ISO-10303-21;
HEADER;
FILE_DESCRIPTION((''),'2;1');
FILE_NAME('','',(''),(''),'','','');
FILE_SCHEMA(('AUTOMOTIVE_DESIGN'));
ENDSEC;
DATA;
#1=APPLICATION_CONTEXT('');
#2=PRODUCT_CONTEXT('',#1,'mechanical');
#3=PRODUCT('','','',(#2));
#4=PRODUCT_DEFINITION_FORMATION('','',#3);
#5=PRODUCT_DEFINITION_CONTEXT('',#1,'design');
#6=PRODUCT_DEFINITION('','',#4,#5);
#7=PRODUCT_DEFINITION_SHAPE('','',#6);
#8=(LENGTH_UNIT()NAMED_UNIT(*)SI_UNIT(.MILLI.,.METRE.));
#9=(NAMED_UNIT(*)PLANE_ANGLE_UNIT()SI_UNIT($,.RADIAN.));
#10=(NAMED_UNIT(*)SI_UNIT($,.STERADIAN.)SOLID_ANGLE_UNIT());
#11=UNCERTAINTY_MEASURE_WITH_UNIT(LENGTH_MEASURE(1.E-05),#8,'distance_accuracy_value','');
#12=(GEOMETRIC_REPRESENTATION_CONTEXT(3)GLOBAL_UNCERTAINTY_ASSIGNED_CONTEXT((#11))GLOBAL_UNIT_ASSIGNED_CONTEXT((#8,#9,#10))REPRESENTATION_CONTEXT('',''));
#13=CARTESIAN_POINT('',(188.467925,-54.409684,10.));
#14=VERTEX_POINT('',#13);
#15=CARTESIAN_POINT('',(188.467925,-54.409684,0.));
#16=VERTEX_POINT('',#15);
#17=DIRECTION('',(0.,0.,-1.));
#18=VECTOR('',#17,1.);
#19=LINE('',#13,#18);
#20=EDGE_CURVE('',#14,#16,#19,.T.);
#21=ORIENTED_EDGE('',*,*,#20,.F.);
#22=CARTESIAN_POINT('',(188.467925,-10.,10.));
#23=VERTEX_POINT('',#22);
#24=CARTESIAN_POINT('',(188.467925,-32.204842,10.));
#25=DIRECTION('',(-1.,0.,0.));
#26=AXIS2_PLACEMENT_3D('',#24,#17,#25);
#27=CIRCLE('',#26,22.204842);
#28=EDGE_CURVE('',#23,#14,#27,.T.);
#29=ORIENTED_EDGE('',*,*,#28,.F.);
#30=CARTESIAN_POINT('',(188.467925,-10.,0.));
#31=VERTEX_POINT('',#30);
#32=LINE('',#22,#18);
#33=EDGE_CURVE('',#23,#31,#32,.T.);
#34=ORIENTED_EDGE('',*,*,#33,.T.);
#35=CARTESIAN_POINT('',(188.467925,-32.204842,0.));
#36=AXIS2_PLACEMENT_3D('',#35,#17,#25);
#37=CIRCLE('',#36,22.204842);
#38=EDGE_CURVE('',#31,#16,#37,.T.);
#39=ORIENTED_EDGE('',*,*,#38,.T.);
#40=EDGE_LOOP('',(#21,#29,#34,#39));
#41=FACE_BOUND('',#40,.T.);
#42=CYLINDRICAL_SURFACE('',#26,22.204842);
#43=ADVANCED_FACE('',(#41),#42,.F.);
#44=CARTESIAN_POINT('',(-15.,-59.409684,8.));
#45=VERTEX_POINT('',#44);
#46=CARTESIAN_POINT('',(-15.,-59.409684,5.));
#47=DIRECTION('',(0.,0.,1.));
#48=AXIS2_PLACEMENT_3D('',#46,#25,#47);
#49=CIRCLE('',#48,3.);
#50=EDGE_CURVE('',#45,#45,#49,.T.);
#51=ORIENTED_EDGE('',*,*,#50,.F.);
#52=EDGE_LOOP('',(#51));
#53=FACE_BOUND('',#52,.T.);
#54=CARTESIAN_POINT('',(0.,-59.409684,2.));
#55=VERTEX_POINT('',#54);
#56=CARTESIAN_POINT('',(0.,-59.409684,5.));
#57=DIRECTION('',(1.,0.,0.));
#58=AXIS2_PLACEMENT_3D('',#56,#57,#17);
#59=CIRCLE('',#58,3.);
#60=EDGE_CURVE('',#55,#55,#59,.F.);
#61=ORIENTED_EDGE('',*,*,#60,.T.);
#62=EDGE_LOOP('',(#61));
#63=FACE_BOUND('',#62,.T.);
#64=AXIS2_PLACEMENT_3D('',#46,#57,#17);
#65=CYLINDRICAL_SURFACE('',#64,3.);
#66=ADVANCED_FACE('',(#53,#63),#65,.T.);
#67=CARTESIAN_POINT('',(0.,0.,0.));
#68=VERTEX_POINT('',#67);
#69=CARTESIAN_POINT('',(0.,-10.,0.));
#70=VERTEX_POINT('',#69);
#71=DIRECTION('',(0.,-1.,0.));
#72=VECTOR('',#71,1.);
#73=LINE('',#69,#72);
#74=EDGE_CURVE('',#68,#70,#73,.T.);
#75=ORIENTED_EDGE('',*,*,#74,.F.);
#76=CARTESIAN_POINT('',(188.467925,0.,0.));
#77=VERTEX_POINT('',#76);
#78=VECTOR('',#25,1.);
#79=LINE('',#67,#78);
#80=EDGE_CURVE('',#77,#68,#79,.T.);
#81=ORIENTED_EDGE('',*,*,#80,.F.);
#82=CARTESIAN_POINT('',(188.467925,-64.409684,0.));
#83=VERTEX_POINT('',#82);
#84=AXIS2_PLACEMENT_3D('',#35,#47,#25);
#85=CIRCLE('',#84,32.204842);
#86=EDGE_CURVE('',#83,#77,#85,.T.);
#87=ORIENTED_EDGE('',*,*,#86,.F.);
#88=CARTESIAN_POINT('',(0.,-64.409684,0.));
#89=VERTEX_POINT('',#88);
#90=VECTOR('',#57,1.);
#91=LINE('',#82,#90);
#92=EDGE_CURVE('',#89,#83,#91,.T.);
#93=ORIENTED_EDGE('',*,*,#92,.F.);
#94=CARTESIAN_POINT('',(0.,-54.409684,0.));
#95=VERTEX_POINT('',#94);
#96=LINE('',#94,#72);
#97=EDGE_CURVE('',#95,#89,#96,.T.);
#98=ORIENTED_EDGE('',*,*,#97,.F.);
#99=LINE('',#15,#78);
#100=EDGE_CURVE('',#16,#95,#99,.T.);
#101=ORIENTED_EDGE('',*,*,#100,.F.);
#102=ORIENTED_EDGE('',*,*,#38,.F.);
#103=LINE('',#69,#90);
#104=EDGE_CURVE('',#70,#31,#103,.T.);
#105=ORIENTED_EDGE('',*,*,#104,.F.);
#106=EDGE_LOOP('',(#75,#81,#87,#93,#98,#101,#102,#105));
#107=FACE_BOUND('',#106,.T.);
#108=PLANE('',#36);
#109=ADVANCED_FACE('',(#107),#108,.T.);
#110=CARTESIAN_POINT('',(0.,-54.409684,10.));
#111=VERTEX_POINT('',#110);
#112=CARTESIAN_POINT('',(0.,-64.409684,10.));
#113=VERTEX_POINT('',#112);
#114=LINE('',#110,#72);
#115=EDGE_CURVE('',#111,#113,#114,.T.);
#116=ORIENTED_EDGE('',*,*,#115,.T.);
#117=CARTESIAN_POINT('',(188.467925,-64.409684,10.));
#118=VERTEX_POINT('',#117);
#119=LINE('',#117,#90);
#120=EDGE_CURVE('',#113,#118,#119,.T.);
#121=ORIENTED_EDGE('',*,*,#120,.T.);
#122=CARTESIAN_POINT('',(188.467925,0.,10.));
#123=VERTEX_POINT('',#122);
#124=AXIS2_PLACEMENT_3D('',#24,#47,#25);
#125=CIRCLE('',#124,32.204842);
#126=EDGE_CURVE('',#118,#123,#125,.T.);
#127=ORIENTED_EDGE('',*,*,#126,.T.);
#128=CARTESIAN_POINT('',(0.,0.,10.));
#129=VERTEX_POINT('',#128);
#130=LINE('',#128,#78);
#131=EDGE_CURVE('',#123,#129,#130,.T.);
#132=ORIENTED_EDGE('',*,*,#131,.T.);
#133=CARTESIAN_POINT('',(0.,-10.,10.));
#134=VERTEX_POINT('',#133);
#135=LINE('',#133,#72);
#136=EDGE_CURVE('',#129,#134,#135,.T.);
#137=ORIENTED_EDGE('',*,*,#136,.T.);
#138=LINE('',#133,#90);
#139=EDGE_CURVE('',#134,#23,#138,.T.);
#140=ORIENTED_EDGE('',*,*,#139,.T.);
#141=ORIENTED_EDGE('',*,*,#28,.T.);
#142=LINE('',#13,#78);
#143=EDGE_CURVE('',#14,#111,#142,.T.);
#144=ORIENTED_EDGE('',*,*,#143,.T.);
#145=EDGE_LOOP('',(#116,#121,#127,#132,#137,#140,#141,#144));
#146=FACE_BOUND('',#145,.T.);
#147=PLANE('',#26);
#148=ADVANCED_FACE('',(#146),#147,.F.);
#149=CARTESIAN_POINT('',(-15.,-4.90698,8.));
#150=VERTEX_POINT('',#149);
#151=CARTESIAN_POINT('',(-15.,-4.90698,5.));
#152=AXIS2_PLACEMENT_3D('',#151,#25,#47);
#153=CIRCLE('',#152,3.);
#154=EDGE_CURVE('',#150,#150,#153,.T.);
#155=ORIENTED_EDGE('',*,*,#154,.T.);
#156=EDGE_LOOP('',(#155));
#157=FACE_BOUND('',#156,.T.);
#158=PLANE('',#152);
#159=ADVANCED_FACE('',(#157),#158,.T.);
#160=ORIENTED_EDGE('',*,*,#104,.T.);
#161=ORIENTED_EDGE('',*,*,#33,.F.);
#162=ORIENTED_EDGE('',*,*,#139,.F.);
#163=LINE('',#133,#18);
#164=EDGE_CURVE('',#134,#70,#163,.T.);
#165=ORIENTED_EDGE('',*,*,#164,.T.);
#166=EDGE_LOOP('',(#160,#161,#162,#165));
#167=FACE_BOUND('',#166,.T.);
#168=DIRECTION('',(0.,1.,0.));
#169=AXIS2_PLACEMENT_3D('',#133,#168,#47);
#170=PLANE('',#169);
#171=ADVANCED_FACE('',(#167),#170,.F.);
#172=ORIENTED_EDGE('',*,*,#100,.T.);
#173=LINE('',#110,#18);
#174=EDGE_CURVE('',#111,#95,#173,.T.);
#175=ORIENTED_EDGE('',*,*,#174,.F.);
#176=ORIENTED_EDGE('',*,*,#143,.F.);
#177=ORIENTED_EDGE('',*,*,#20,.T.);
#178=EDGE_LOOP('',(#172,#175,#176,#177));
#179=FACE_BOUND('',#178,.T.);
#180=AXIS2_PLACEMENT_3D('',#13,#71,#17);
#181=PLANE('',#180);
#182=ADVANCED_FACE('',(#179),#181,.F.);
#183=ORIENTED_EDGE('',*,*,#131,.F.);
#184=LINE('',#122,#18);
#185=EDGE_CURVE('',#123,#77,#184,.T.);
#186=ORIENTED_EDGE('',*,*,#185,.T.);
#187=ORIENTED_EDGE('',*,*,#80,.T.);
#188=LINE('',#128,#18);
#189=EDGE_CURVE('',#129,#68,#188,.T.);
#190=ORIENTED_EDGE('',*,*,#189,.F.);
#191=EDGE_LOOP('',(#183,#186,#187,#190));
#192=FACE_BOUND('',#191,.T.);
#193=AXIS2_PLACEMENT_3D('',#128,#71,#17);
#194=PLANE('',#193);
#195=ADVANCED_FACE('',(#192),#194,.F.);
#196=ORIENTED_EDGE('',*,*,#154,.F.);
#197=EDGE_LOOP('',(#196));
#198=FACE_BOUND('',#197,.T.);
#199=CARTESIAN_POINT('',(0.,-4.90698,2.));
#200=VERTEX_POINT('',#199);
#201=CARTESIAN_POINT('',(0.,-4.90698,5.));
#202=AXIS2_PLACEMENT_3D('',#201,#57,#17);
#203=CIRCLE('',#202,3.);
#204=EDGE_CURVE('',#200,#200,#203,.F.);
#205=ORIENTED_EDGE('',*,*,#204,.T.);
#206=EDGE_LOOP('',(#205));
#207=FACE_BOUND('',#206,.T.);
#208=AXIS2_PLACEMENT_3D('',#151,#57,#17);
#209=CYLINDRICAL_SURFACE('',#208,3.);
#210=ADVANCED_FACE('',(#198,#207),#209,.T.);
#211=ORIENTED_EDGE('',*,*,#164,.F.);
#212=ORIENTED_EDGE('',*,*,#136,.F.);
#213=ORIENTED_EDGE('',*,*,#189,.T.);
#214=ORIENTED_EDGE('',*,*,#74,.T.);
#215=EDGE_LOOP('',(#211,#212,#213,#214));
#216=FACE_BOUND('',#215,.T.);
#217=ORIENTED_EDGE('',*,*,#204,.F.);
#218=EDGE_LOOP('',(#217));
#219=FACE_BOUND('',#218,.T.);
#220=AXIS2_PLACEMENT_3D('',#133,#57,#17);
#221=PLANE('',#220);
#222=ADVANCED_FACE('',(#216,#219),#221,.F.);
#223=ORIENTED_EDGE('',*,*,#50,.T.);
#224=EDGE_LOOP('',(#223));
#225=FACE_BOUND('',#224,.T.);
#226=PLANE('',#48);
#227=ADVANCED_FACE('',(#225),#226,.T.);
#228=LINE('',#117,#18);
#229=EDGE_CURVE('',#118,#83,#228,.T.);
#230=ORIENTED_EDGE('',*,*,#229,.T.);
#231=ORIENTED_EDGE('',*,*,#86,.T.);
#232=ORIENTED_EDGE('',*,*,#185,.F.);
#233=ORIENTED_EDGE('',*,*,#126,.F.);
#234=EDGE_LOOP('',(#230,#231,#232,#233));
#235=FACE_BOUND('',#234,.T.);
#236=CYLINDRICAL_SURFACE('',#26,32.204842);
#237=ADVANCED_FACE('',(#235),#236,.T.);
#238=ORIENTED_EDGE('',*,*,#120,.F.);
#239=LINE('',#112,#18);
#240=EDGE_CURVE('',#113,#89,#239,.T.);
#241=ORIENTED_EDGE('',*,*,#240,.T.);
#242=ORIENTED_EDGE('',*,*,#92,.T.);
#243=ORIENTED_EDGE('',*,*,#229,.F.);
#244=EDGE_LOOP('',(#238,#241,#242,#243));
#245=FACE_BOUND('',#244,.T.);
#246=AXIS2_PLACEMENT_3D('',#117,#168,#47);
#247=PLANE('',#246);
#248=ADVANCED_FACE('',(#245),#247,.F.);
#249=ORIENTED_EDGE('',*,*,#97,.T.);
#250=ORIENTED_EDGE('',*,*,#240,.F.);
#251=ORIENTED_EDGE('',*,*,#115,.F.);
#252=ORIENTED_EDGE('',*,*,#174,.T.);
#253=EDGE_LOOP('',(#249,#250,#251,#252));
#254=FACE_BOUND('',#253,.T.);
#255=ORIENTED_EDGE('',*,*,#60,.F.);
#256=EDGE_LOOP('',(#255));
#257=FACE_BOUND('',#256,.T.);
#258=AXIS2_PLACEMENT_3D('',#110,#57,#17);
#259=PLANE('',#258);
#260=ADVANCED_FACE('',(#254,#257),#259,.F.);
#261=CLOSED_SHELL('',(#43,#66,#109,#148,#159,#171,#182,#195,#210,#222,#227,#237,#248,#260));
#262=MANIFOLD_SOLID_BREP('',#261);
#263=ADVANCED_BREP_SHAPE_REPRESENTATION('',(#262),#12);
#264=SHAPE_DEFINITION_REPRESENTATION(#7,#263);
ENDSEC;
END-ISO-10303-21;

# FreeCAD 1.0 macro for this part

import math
import FreeCAD as App
import Part
import Sketcher

V = App.Vector

doc = App.newDocument("Part")
body = doc.addObject("PartDesign::Body", "Body")

sketch1 = body.newObject("Sketcher::SketchObject", "Sketch")
sketch1.AttachmentSupport = (doc.getObject("XY_Plane"), [""])
sketch1.MapMode = "FlatFace"
sketch1.addGeometry(Part.LineSegment(V(188, 0, 0), V(0, 0, 0)), False)
sketch1.addGeometry(Part.LineSegment(V(0, 0, 0), V(0, -10, 0)), False)
sketch1.addGeometry(Part.LineSegment(V(0, -10, 0), V(188, -10, 0)), False)
sketch1.addGeometry(Part.ArcOfCircle(Part.Circle(V(188, -32, 0), V(0, 0, 1), 22), math.radians(-90), math.radians(90)), False)
sketch1.addGeometry(Part.LineSegment(V(188, -54, 0), V(0, -54, 0)), False)
sketch1.addGeometry(Part.LineSegment(V(0, -54, 0), V(0, -64, 0)), False)
sketch1.addGeometry(Part.LineSegment(V(0, -64, 0), V(188, -64, 0)), False)
sketch1.addGeometry(Part.ArcOfCircle(Part.Circle(V(188, -32, 0), V(0, 0, 1), 32), math.radians(-90), math.radians(90)), False)
sketch1.addConstraint(Sketcher.Constraint("Coincident", 0, 2, 1, 1))
sketch1.addConstraint(Sketcher.Constraint("Coincident", 1, 2, 2, 1))
sketch1.addConstraint(Sketcher.Constraint("Tangent", 2, 2, 3, 2))
sketch1.addConstraint(Sketcher.Constraint("Tangent", 3, 1, 4, 1))
sketch1.addConstraint(Sketcher.Constraint("Coincident", 4, 2, 5, 1))
sketch1.addConstraint(Sketcher.Constraint("Coincident", 5, 2, 6, 1))
sketch1.addConstraint(Sketcher.Constraint("Tangent", 6, 2, 7, 1))
sketch1.addConstraint(Sketcher.Constraint("Tangent", 7, 2, 0, 1))
sketch1.addConstraint(Sketcher.Constraint("Horizontal", 0))
sketch1.addConstraint(Sketcher.Constraint("Vertical", 1))
sketch1.addConstraint(Sketcher.Constraint("Horizontal", 2))
sketch1.addConstraint(Sketcher.Constraint("Horizontal", 4))
sketch1.addConstraint(Sketcher.Constraint("Vertical", 5))
sketch1.addConstraint(Sketcher.Constraint("Horizontal", 6))
sketch1.addConstraint(Sketcher.Constraint("Coincident", 0, 2, -1, 1))
sketch1.addConstraint(Sketcher.Constraint("Coincident", 7, 3, 3, 3))
sketch1.addConstraint(Sketcher.Constraint("PointOnObject", 4, 2, -2))
sketch1.addConstraint(Sketcher.Constraint("DistanceY", 1, 2, 1, 1, 10.0))
sketch1.addConstraint(Sketcher.Constraint("Radius", 3, 22.204842))
sketch1.addConstraint(Sketcher.Constraint("DistanceX", 0, 2, 0, 1, 188.467925))
pad1 = body.newObject("PartDesign::Pad", "Pad")
pad1.Profile = sketch1
pad1.Length = 10

sketch2 = body.newObject("Sketcher::SketchObject", "Sketch001")
sketch2.AttachmentSupport = (doc.getObject("YZ_Plane"), [""])
sketch2.MapMode = "FlatFace"
sketch2.addGeometry(Part.Circle(V(-4.9, 5, 0), V(0, 0, 1), 3), False)
sketch2.addConstraint(Sketcher.Constraint("Diameter", 0, 6.0))
sketch2.addConstraint(Sketcher.Constraint("DistanceY", -1, 1, 0, 3, 5.0))
sketch2.addConstraint(Sketcher.Constraint("DistanceX", 0, 3, -1, 1, 4.90698))
pad2 = body.newObject("PartDesign::Pad", "Pad001")
pad2.Profile = sketch2
pad2.Length = 15
pad2.Reversed = True

sketch3 = body.newObject("Sketcher::SketchObject", "Sketch002")
sketch3.AttachmentSupport = (doc.getObject("YZ_Plane"), [""])
sketch3.MapMode = "FlatFace"
sketch3.addGeometry(Part.Circle(V(-59.4, 5, 0), V(0, 0, 1), 3), False)
sketch3.addConstraint(Sketcher.Constraint("Diameter", 0, 6.0))
sketch3.addConstraint(Sketcher.Constraint("DistanceY", -1, 1, 0, 3, 5.0))
sketch3.addConstraint(Sketcher.Constraint("DistanceX", 0, 3, -1, 1, 59.409684))
pad3 = body.newObject("PartDesign::Pad", "Pad002")
pad3.Profile = sketch3
pad3.Length = 15
pad3.Reversed = True

doc.recompute()
